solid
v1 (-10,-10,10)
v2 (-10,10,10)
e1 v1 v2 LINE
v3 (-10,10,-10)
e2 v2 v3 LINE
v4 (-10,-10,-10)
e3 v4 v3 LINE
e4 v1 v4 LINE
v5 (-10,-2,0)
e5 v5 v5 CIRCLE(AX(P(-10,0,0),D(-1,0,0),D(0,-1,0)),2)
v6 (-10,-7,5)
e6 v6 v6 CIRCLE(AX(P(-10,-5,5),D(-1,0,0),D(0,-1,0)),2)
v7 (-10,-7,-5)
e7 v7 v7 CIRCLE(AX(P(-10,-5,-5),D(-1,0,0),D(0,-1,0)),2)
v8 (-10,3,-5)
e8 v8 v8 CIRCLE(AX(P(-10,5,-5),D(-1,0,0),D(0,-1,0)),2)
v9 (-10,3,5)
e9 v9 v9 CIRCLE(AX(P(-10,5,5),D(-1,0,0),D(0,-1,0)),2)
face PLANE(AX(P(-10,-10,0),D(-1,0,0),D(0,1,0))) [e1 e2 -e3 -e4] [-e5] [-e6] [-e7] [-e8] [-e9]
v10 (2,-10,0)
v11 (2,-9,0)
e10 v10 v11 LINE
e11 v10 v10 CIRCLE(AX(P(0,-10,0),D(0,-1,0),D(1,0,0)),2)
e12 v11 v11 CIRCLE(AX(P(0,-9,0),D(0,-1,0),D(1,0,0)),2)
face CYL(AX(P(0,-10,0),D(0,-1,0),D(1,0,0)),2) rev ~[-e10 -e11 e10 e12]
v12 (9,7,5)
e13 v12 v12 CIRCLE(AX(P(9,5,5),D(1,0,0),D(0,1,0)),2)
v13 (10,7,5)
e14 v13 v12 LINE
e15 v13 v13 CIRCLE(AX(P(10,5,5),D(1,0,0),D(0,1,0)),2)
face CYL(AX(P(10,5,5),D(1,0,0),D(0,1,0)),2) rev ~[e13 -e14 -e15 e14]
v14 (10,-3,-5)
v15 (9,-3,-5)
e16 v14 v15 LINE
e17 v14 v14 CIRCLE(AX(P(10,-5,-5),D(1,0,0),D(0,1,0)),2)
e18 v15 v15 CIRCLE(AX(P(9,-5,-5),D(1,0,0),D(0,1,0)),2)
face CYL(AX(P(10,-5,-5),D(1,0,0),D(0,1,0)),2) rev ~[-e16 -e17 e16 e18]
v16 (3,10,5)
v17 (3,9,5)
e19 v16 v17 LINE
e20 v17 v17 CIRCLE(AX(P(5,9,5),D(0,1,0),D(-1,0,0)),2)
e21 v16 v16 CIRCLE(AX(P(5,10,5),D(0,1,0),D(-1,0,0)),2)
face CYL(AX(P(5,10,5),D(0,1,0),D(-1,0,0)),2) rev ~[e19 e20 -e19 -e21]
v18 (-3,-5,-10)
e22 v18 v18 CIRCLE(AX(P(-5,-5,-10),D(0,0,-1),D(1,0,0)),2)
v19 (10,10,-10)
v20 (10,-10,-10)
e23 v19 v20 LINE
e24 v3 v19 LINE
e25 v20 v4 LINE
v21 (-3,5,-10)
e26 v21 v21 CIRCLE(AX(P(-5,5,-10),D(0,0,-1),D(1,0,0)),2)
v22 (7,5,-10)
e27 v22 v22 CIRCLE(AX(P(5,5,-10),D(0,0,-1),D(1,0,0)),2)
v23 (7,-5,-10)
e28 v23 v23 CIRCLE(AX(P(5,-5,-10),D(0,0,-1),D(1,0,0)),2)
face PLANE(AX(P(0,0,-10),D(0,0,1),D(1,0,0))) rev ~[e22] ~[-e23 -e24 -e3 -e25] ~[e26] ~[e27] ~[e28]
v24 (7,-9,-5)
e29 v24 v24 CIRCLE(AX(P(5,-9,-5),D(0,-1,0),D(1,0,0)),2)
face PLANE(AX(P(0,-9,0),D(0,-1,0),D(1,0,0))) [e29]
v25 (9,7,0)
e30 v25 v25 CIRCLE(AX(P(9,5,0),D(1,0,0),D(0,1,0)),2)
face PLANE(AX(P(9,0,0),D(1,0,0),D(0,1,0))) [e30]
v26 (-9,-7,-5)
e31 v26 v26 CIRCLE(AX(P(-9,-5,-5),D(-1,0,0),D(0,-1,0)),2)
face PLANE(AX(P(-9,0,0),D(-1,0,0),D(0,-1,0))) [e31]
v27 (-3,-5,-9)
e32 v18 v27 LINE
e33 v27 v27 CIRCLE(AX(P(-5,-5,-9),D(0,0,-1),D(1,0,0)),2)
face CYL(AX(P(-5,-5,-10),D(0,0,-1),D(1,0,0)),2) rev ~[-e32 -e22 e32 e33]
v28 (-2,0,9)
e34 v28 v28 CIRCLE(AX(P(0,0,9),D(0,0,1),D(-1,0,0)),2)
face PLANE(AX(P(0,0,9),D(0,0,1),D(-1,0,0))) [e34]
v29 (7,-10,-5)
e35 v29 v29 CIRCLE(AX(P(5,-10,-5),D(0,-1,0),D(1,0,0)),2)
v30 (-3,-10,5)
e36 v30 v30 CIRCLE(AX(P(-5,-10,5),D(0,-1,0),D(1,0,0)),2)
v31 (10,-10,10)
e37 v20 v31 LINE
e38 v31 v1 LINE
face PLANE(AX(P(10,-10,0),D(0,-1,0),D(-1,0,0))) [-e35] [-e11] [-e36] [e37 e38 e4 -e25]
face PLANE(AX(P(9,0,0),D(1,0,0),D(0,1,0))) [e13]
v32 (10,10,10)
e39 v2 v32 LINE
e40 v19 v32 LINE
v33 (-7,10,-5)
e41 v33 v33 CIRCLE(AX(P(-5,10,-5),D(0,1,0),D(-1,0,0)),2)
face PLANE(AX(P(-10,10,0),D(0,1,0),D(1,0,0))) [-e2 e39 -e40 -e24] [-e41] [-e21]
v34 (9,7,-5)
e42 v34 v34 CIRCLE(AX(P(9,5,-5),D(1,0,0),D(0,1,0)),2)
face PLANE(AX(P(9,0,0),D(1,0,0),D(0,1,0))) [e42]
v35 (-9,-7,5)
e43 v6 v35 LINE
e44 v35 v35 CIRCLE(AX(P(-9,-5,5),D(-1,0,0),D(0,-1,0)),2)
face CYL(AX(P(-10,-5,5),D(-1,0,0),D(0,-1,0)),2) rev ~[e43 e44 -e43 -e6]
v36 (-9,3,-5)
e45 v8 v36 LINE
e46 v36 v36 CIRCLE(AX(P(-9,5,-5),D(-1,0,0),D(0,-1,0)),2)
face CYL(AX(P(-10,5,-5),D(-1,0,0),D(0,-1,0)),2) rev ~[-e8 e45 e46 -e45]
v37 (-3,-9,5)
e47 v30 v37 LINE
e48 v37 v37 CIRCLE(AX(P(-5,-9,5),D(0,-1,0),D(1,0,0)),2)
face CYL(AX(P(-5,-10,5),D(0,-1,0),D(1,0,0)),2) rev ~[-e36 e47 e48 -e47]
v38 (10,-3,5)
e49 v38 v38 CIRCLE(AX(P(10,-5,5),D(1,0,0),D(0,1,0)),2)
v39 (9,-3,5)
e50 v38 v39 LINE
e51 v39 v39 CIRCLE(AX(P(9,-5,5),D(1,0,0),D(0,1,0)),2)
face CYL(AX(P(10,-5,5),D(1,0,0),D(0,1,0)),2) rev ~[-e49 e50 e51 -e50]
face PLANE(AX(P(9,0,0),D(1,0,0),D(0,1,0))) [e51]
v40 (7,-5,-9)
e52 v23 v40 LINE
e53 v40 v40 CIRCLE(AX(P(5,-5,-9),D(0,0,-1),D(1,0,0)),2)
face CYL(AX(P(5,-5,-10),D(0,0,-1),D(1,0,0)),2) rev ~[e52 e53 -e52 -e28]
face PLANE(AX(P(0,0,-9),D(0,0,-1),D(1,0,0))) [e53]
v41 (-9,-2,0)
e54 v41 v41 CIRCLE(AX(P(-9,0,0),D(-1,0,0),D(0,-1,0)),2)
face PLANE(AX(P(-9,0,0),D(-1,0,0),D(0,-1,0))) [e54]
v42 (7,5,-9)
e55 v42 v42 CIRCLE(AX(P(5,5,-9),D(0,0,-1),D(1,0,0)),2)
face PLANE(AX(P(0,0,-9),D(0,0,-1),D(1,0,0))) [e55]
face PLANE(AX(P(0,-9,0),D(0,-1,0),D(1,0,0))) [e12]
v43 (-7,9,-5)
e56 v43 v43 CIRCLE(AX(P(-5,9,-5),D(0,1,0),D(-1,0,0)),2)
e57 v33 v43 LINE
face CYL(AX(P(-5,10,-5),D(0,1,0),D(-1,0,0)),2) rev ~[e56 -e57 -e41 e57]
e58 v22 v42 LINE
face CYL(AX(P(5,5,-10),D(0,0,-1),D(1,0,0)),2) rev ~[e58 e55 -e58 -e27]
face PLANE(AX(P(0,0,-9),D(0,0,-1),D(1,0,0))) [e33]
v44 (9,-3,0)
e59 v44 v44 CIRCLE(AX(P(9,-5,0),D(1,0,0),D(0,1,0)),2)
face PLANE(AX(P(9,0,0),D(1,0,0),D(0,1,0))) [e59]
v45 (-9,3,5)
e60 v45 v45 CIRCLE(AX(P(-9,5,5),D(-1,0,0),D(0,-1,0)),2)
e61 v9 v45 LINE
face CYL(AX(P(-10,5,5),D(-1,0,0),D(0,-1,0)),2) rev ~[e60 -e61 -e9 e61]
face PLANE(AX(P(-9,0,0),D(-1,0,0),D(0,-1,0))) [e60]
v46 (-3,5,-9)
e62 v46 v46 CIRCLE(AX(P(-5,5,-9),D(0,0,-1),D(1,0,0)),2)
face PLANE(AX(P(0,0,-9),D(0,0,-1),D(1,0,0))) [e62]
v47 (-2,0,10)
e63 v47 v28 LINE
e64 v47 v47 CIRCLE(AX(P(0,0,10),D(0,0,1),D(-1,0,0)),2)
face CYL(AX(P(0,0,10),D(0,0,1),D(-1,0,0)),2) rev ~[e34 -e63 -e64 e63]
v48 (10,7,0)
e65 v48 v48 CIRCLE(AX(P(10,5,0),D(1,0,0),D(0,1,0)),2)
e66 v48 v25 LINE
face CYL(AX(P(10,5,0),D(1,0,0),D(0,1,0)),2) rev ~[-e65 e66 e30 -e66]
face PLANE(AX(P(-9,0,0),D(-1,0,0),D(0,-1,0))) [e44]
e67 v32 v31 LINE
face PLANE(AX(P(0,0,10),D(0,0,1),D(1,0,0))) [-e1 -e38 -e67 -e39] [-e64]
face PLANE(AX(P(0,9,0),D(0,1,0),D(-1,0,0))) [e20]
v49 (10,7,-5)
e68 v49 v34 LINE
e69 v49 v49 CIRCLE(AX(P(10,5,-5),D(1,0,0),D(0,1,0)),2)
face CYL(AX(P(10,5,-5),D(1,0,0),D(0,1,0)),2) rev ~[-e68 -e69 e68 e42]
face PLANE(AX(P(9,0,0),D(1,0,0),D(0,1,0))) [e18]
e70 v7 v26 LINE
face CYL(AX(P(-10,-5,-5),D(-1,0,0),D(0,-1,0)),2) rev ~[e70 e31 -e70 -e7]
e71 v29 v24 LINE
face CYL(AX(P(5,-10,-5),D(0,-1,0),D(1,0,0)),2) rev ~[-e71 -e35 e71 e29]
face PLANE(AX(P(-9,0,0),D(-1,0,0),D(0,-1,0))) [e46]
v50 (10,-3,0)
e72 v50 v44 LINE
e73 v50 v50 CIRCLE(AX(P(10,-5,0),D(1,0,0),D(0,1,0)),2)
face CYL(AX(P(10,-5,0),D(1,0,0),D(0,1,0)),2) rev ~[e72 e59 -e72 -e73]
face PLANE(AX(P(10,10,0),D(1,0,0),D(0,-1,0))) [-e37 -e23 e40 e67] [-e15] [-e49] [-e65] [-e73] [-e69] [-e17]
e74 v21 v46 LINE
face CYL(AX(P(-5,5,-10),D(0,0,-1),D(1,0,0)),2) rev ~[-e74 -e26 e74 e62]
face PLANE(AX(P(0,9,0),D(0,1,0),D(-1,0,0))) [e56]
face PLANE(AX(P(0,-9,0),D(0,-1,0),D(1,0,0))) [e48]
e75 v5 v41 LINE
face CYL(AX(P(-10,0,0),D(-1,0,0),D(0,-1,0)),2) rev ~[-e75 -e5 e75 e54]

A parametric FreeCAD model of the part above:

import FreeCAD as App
import Part
import Sketcher


def add_polygon(sketch, points):
    """Adds a closed chain of lines whose ends are joined by coincident constraints."""
    first, n = sketch.GeometryCount, len(points)
    for a, b in zip(points, points[1:] + points[:1]):
        sketch.addGeometry(Part.LineSegment(App.Vector(*a, 0), App.Vector(*b, 0)), False)
    for i in range(n):
        sketch.addConstraint(Sketcher.Constraint("Coincident", first + i, 2, first + (i + 1) % n, 1))

doc = App.newDocument("Part")
params = doc.addObject("Spreadsheet::Sheet", "Params")
for row, (alias, value) in enumerate([
    ("sketch1_width", "20 mm"),
    ("pad1_length", "20 mm"),
    ("sketch2_diameter", "4 mm"),
    ("pocket1_length", "1 mm"),
    ("sketch3_diameter", "4 mm"),
    ("pocket2_length", "1 mm"),
    ("sketch4_diameter", "4 mm"),
    ("pocket3_length", "1 mm"),
    ("sketch5_diameter", "4 mm"),
    ("pocket4_length", "1 mm"),
    ("sketch6_diameter", "4 mm"),
    ("pocket5_length", "1 mm"),
    ("sketch7_diameter", "4 mm"),
    ("pocket6_length", "1 mm"),
], start=1):
    params.set(f"A{row}", alias)
    params.set(f"B{row}", "=" + value)
    params.setAlias(f"B{row}", alias)

body = doc.addObject("PartDesign::Body", "Body")

sketch1 = body.newObject("Sketcher::SketchObject", "Sketch")
sketch1.AttachmentSupport = (doc.getObject("XY_Plane"), [""])
sketch1.MapMode = "FlatFace"
add_polygon(sketch1, [(-10, -10), (10, -10), (10, 10), (-10, 10)])
sketch1.addConstraint([
    Sketcher.Constraint("Horizontal", 0),
    Sketcher.Constraint("Vertical", 1),
    Sketcher.Constraint("Horizontal", 2),
    Sketcher.Constraint("Vertical", 3),
    Sketcher.Constraint("Symmetric", 0, 2, 2, 2, -1, 1),
    Sketcher.Constraint("Equal", 2, 1),
    Sketcher.Constraint("DistanceX", 0, 1, 0, 2, 20.0),
])
sketch1.setExpression("Constraints[10]", "Params.sketch1_width")
pad1 = body.newObject("PartDesign::Pad", "Pad")
pad1.Profile = sketch1
pad1.setExpression("Length", "Params.pad1_length")
pad1.Midplane = True

sketch2 = body.newObject("Sketcher::SketchObject", "Sketch001")
sketch2.AttachmentSupport = (doc.getObject("XY_Plane"), [""])
sketch2.MapMode = "FlatFace"
sketch2.AttachmentOffset = App.Placement(App.Vector(0, 0, 10), App.Rotation())
sketch2.addGeometry(Part.Circle(App.Vector(0, 0, 0), App.Vector(0, 0, 1), 2), False)
sketch2.addConstraint([
    Sketcher.Constraint("Coincident", 0, 3, -1, 1),
    Sketcher.Constraint("Diameter", 0, 4.0),
])
sketch2.setExpression("Constraints[1]", "Params.sketch2_diameter")
pocket1 = body.newObject("PartDesign::Pocket", "Pocket")
pocket1.Profile = sketch2
pocket1.setExpression("Length", "Params.pocket1_length")

sketch3 = body.newObject("Sketcher::SketchObject", "Sketch002")
sketch3.AttachmentSupport = (doc.getObject("XZ_Plane"), [""])
sketch3.MapMode = "FlatFace"
sketch3.AttachmentOffset = App.Placement(App.Vector(0, 0, 10), App.Rotation())
sketch3.addGeometry([
    Part.Circle(App.Vector(0, 0, 0), App.Vector(0, 0, 1), 2),
    Part.Circle(App.Vector(-5, 5, 0), App.Vector(0, 0, 1), 2),
    Part.Circle(App.Vector(5, -5, 0), App.Vector(0, 0, 1), 2),
], False)
sketch3.addConstraint([
    Sketcher.Constraint("Coincident", 0, 3, -1, 1),
    Sketcher.Constraint("Equal", 0, 1),
    Sketcher.Constraint("Equal", 1, 2),
    Sketcher.Constraint("Symmetric", 1, 3, 2, 3, -1, 1),
    Sketcher.Constraint("Diameter", 0, 4.0),
    Sketcher.Constraint("DistanceX", 1, 3, -1, 1, 5.0),
    Sketcher.Constraint("DistanceY", -1, 1, 1, 3, 5.0),
])
sketch3.setExpression("Constraints[4]", "Params.sketch3_diameter")
pocket2 = body.newObject("PartDesign::Pocket", "Pocket001")
pocket2.Profile = sketch3
pocket2.setExpression("Length", "Params.pocket2_length")

sketch4 = body.newObject("Sketcher::SketchObject", "Sketch003")
sketch4.AttachmentSupport = (doc.getObject("YZ_Plane"), [""])
sketch4.MapMode = "FlatFace"
sketch4.AttachmentOffset = App.Placement(App.Vector(0, 0, -10), App.Rotation())
sketch4.addGeometry([
    Part.Circle(App.Vector(0, 0, 0), App.Vector(0, 0, 1), 2),
    Part.Circle(App.Vector(5, 5, 0), App.Vector(0, 0, 1), 2),
    Part.Circle(App.Vector(-5, 5, 0), App.Vector(0, 0, 1), 2),
    Part.Circle(App.Vector(5, -5, 0), App.Vector(0, 0, 1), 2),
    Part.Circle(App.Vector(-5, -5, 0), App.Vector(0, 0, 1), 2),
], False)
sketch4.addConstraint([
    Sketcher.Constraint("Coincident", 0, 3, -1, 1),
    Sketcher.Constraint("Equal", 0, 1),
    Sketcher.Constraint("Equal", 1, 2),
    Sketcher.Constraint("Equal", 2, 3),
    Sketcher.Constraint("Equal", 3, 4),
    Sketcher.Constraint("Symmetric", 2, 3, 3, 3, -1, 1),
    Sketcher.Constraint("Symmetric", 1, 3, 4, 3, -1, 1),
    Sketcher.Constraint("Symmetric", 1, 3, 2, 3, -2),
    Sketcher.Constraint("Diameter", 0, 4.0),
    Sketcher.Constraint("DistanceX", -1, 1, 1, 3, 5.0),
    Sketcher.Constraint("DistanceY", -1, 1, 1, 3, 5.0),
])
sketch4.setExpression("Constraints[8]", "Params.sketch4_diameter")
pocket3 = body.newObject("PartDesign::Pocket", "Pocket002")
pocket3.Profile = sketch4
pocket3.setExpression("Length", "Params.pocket3_length")
pocket3.Reversed = True

sketch5 = body.newObject("Sketcher::SketchObject", "Sketch004")
sketch5.AttachmentSupport = (doc.getObject("XZ_Plane"), [""])
sketch5.MapMode = "FlatFace"
sketch5.AttachmentOffset = App.Placement(App.Vector(0, 0, -10), App.Rotation())
sketch5.addGeometry([
    Part.Circle(App.Vector(5, 5, 0), App.Vector(0, 0, 1), 2),
    Part.Circle(App.Vector(-5, -5, 0), App.Vector(0, 0, 1), 2),
], False)
sketch5.addConstraint([
    Sketcher.Constraint("Equal", 0, 1),
    Sketcher.Constraint("Symmetric", 0, 3, 1, 3, -1, 1),
    Sketcher.Constraint("Diameter", 0, 4.0),
    Sketcher.Constraint("DistanceX", -1, 1, 0, 3, 5.0),
    Sketcher.Constraint("DistanceY", -1, 1, 0, 3, 5.0),
])
sketch5.setExpression("Constraints[2]", "Params.sketch5_diameter")
pocket4 = body.newObject("PartDesign::Pocket", "Pocket003")
pocket4.Profile = sketch5
pocket4.setExpression("Length", "Params.pocket4_length")
pocket4.Reversed = True

sketch6 = body.newObject("Sketcher::SketchObject", "Sketch005")
sketch6.AttachmentSupport = (doc.getObject("YZ_Plane"), [""])
sketch6.MapMode = "FlatFace"
sketch6.AttachmentOffset = App.Placement(App.Vector(0, 0, 10), App.Rotation())
sketch6.addGeometry([
    Part.Circle(App.Vector(-5, 0, 0), App.Vector(0, 0, 1), 2),
    Part.Circle(App.Vector(-5, 5, 0), App.Vector(0, 0, 1), 2),
    Part.Circle(App.Vector(-5, -5, 0), App.Vector(0, 0, 1), 2),
    Part.Circle(App.Vector(5, 5, 0), App.Vector(0, 0, 1), 2),
    Part.Circle(App.Vector(5, 0, 0), App.Vector(0, 0, 1), 2),
    Part.Circle(App.Vector(5, -5, 0), App.Vector(0, 0, 1), 2),
], False)
sketch6.addConstraint([
    Sketcher.Constraint("Equal", 0, 1),
    Sketcher.Constraint("Equal", 1, 2),
    Sketcher.Constraint("Equal", 2, 3),
    Sketcher.Constraint("Equal", 3, 4),
    Sketcher.Constraint("Equal", 4, 5),
    Sketcher.Constraint("Symmetric", 2, 3, 3, 3, -1, 1),
    Sketcher.Constraint("Symmetric", 0, 3, 4, 3, -1, 1),
    Sketcher.Constraint("Symmetric", 1, 3, 5, 3, -1, 1),
    Sketcher.Constraint("Symmetric", 1, 3, 3, 3, -2),
    Sketcher.Constraint("PointOnObject", 0, 3, -1),
    Sketcher.Constraint("Vertical", 0, 3, 1, 3),
    Sketcher.Constraint("Diameter", 0, 4.0),
    Sketcher.Constraint("DistanceX", 0, 3, -1, 1, 5.0),
    Sketcher.Constraint("DistanceY", -1, 1, 1, 3, 5.0),
])
sketch6.setExpression("Constraints[11]", "Params.sketch6_diameter")
pocket5 = body.newObject("PartDesign::Pocket", "Pocket004")
pocket5.Profile = sketch6
pocket5.setExpression("Length", "Params.pocket5_length")

sketch7 = body.newObject("Sketcher::SketchObject", "Sketch006")
sketch7.AttachmentSupport = (doc.getObject("XY_Plane"), [""])
sketch7.MapMode = "FlatFace"
sketch7.AttachmentOffset = App.Placement(App.Vector(0, 0, -10), App.Rotation())
sketch7.addGeometry([
    Part.Circle(App.Vector(5, -5, 0), App.Vector(0, 0, 1), 2),
    Part.Circle(App.Vector(-5, 5, 0), App.Vector(0, 0, 1), 2),
    Part.Circle(App.Vector(-5, -5, 0), App.Vector(0, 0, 1), 2),
    Part.Circle(App.Vector(5, 5, 0), App.Vector(0, 0, 1), 2),
], False)
sketch7.addConstraint([
    Sketcher.Constraint("Equal", 0, 1),
    Sketcher.Constraint("Equal", 1, 2),
    Sketcher.Constraint("Equal", 2, 3),
    Sketcher.Constraint("Symmetric", 0, 3, 1, 3, -1, 1),
    Sketcher.Constraint("Symmetric", 2, 3, 3, 3, -1, 1),
    Sketcher.Constraint("Symmetric", 0, 3, 2, 3, -2),
    Sketcher.Constraint("Diameter", 0, 4.0),
    Sketcher.Constraint("DistanceX", -1, 1, 0, 3, 5.0),
    Sketcher.Constraint("DistanceY", 0, 3, -1, 1, 5.0),
])
sketch7.setExpression("Constraints[6]", "Params.sketch7_diameter")
pocket6 = body.newObject("PartDesign::Pocket", "Pocket005")
pocket6.Profile = sketch7
pocket6.setExpression("Length", "Params.pocket6_length")
pocket6.Reversed = True

doc.recompute()
